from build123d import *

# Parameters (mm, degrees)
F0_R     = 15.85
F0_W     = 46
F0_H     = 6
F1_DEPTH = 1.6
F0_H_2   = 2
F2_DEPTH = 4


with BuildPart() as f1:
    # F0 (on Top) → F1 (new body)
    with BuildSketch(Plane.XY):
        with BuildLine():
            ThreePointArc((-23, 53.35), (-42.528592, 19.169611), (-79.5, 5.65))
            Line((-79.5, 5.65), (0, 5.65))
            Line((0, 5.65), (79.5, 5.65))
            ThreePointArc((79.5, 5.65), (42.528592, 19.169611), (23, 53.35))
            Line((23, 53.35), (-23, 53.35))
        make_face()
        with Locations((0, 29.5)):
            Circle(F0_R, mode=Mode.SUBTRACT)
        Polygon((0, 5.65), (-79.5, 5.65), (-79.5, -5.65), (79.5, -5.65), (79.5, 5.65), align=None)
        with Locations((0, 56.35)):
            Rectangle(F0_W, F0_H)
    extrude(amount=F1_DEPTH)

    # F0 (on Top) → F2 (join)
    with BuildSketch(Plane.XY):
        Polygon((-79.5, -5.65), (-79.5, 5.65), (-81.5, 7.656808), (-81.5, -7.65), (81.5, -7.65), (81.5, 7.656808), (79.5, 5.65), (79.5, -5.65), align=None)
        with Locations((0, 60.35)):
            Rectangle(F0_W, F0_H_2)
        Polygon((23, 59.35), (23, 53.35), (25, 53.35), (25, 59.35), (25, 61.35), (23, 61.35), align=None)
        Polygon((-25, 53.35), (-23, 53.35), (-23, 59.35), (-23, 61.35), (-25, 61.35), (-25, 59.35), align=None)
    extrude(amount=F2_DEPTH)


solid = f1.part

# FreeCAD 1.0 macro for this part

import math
import FreeCAD as App
import Part
import Sketcher

doc = App.newDocument("Part")
body = doc.addObject("PartDesign::Body", "Body")

sketch1 = body.newObject("Sketcher::SketchObject", "Sketch")
sketch1.AttachmentSupport = (doc.getObject("XY_Plane"), [""])
sketch1.MapMode = "FlatFace"
sketch1.addGeometry([
    Part.ArcOfCircle(Part.Circle(App.Vector(-79, 63, 0), App.Vector(0, 0, 1), 57), math.radians(-90), math.radians(-10)),
    Part.LineSegment(App.Vector(-80, 6, 0), App.Vector(-80, -6, 0)),
    Part.LineSegment(App.Vector(-80, -6, 0), App.Vector(80, -6, 0)),
    Part.LineSegment(App.Vector(80, -6, 0), App.Vector(80, 6, 0)),
    Part.ArcOfCircle(Part.Circle(App.Vector(79, 63, 0), App.Vector(0, 0, 1), 57), math.radians(-170), math.radians(-90)),
    Part.LineSegment(App.Vector(23, 53, 0), App.Vector(23, 59, 0)),
    Part.LineSegment(App.Vector(23, 59, 0), App.Vector(-23, 59, 0)),
    Part.LineSegment(App.Vector(-23, 59, 0), App.Vector(-23, 53, 0)),
    Part.Circle(App.Vector(0, 30, 0), App.Vector(0, 0, 1), 16),
], False)
sketch1.addConstraint([
    Sketcher.Constraint("Coincident", 0, 1, 1, 1),
    Sketcher.Constraint("Coincident", 1, 2, 2, 1),
    Sketcher.Constraint("Coincident", 2, 2, 3, 1),
    Sketcher.Constraint("Coincident", 3, 2, 4, 2),
    Sketcher.Constraint("Coincident", 4, 1, 5, 1),
    Sketcher.Constraint("Coincident", 5, 2, 6, 1),
    Sketcher.Constraint("Coincident", 6, 2, 7, 1),
    Sketcher.Constraint("Coincident", 7, 2, 0, 2),
    Sketcher.Constraint("Vertical", 1),
    Sketcher.Constraint("Horizontal", 2),
    Sketcher.Constraint("Vertical", 3),
    Sketcher.Constraint("Vertical", 5),
    Sketcher.Constraint("Horizontal", 6),
    Sketcher.Constraint("Vertical", 7),
    Sketcher.Constraint("Equal", 0, 4),
    Sketcher.Constraint("Symmetric", 0, 1, 2, 2, -1, 1),
    Sketcher.Constraint("Symmetric", 0, 3, 4, 3, -2),
    Sketcher.Constraint("PointOnObject", 8, 3, -2),
    Sketcher.Constraint("Horizontal", 4, 1, 7, 2),
    Sketcher.Constraint("Vertical", 4, 3, 2, 2),
    Sketcher.Constraint("Diameter", 8, 31.7),
    Sketcher.Constraint("DistanceX", 2, 1, 2, 2, 159.0),
    Sketcher.Constraint("DistanceX", 6, 2, 6, 1, 46.0),
    Sketcher.Constraint("DistanceY", 5, 1, 5, 2, 6.0),
    Sketcher.Constraint("DistanceY", 1, 2, 1, 1, 11.3),
    Sketcher.Constraint("DistanceY", 2, 2, 4, 1, 59.0),
    Sketcher.Constraint("DistanceY", -1, 1, 8, 3, 29.5),
])
pad1 = body.newObject("PartDesign::Pad", "Pad")
pad1.Profile = sketch1
pad1.Length = 1.6

sketch2 = body.newObject("Sketcher::SketchObject", "Sketch001")
sketch2.AttachmentSupport = (doc.getObject("XY_Plane"), [""])
sketch2.MapMode = "FlatFace"
sketch2.addGeometry([
    Part.LineSegment(App.Vector(-79.5, -5.7, 0), App.Vector(-79.5, 5.7, 0)),
    Part.LineSegment(App.Vector(-79.5, 5.7, 0), App.Vector(-81.5, 7.7, 0)),
    Part.LineSegment(App.Vector(-81.5, 7.7, 0), App.Vector(-81.5, -7.7, 0)),
    Part.LineSegment(App.Vector(-81.5, -7.7, 0), App.Vector(81.5, -7.7, 0)),
    Part.LineSegment(App.Vector(81.5, -7.7, 0), App.Vector(81.5, 7.7, 0)),
    Part.LineSegment(App.Vector(81.5, 7.7, 0), App.Vector(79.5, 5.7, 0)),
    Part.LineSegment(App.Vector(79.5, 5.7, 0), App.Vector(79.5, -5.7, 0)),
    Part.LineSegment(App.Vector(79.5, -5.7, 0), App.Vector(-79.5, -5.7, 0)),
    Part.LineSegment(App.Vector(-23, 59.4, 0), App.Vector(23, 59.4, 0)),
    Part.LineSegment(App.Vector(23, 59.4, 0), App.Vector(23, 53.4, 0)),
    Part.LineSegment(App.Vector(23, 53.4, 0), App.Vector(25, 53.4, 0)),
    Part.LineSegment(App.Vector(25, 53.4, 0), App.Vector(25, 61.4, 0)),
    Part.LineSegment(App.Vector(25, 61.4, 0), App.Vector(-25, 61.4, 0)),
    Part.LineSegment(App.Vector(-25, 61.4, 0), App.Vector(-25, 53.4, 0)),
    Part.LineSegment(App.Vector(-25, 53.4, 0), App.Vector(-23, 53.4, 0)),
    Part.LineSegment(App.Vector(-23, 53.4, 0), App.Vector(-23, 59.4, 0)),
], False)
sketch2.addConstraint([
    Sketcher.Constraint("Coincident", 0, 2, 1, 1),
    Sketcher.Constraint("Coincident", 1, 2, 2, 1),
    Sketcher.Constraint("Coincident", 2, 2, 3, 1),
    Sketcher.Constraint("Coincident", 3, 2, 4, 1),
    Sketcher.Constraint("Coincident", 4, 2, 5, 1),
    Sketcher.Constraint("Coincident", 5, 2, 6, 1),
    Sketcher.Constraint("Coincident", 6, 2, 7, 1),
    Sketcher.Constraint("Coincident", 7, 2, 0, 1),
    Sketcher.Constraint("Coincident", 8, 2, 9, 1),
    Sketcher.Constraint("Coincident", 9, 2, 10, 1),
    Sketcher.Constraint("Coincident", 10, 2, 11, 1),
    Sketcher.Constraint("Coincident", 11, 2, 12, 1),
    Sketcher.Constraint("Coincident", 12, 2, 13, 1),
    Sketcher.Constraint("Coincident", 13, 2, 14, 1),
    Sketcher.Constraint("Coincident", 14, 2, 15, 1),
    Sketcher.Constraint("Coincident", 15, 2, 8, 1),
    Sketcher.Constraint("Vertical", 0),
    Sketcher.Constraint("Vertical", 2),
    Sketcher.Constraint("Horizontal", 3),
    Sketcher.Constraint("Vertical", 4),
    Sketcher.Constraint("Vertical", 6),
    Sketcher.Constraint("Horizontal", 7),
    Sketcher.Constraint("Horizontal", 8),
    Sketcher.Constraint("Vertical", 9),
    Sketcher.Constraint("Horizontal", 10),
    Sketcher.Constraint("Vertical", 11),
    Sketcher.Constraint("Horizontal", 12),
    Sketcher.Constraint("Vertical", 13),
    Sketcher.Constraint("Horizontal", 14),
    Sketcher.Constraint("Vertical", 15),
    Sketcher.Constraint("Symmetric", 0, 2, 6, 2, -1, 1),
    Sketcher.Constraint("Symmetric", 1, 2, 4, 2, -2),
    Sketcher.Constraint("Symmetric", 10, 2, 13, 2, -2),
    Sketcher.Constraint("Horizontal", 0, 2, 5, 2),
    Sketcher.Constraint("Equal", 10, 14),
    Sketcher.Constraint("DistanceX", 3, 1, 3, 2, 163.0),
    Sketcher.Constraint("DistanceX", 7, 2, 7, 1, 159.0),
    Sketcher.Constraint("DistanceX", 8, 1, 8, 2, 46.0),
    Sketcher.Constraint("DistanceX", 10, 1, 10, 2, 2.0),
    Sketcher.Constraint("DistanceY", 9, 2, 9, 1, 6.0),
    Sketcher.Constraint("DistanceY", 11, 1, 11, 2, 8.0),
    Sketcher.Constraint("DistanceY", 0, 1, 0, 2, 11.3),
    Sketcher.Constraint("DistanceY", 3, 2, 6, 2, 2.0),
    Sketcher.Constraint("DistanceY", 6, 2, 8, 2, 65.0),
    Sketcher.Constraint("DistanceY", 2, 2, 2, 1, 15.306808),
])
pad2 = body.newObject("PartDesign::Pad", "Pad001")
pad2.Profile = sketch2
pad2.Length = 4

doc.recompute()
